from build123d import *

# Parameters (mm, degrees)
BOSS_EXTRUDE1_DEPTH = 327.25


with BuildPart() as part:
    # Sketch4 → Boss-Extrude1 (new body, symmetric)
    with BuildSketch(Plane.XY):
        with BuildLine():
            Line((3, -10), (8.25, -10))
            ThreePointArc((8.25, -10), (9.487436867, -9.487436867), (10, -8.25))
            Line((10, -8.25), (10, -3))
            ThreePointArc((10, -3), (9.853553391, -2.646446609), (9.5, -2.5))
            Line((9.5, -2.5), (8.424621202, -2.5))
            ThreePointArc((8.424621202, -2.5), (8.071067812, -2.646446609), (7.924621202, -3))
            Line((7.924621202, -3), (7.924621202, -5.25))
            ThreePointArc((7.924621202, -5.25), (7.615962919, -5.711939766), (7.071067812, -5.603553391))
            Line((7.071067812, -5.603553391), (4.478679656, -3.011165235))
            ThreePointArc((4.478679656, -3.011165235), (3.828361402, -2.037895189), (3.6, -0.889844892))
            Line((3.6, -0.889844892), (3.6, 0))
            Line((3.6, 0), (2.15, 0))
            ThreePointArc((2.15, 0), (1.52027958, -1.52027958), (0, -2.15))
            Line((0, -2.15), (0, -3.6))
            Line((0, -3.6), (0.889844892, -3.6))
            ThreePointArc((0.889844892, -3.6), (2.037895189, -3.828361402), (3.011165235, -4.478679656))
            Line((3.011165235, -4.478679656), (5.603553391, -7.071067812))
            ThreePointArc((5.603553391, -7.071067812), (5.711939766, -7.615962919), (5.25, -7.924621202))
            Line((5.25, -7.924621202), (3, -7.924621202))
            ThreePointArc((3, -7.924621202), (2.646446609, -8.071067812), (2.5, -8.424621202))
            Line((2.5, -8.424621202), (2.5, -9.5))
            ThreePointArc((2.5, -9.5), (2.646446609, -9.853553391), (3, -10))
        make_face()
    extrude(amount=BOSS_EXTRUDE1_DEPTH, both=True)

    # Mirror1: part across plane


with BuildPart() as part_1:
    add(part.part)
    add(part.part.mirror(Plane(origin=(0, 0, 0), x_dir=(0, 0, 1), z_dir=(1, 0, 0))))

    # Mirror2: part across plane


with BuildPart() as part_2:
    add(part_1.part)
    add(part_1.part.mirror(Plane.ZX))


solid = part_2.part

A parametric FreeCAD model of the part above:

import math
import FreeCAD as App
import Part
import Sketcher
from FreeCAD import Vector
Q = App.Units.Quantity

doc = App.newDocument("Part")
body = doc.addObject("PartDesign::Body", "Body")

# Sketch on XY plane
sketch1 = doc.addObject("Sketcher::SketchObject", "Sketch")
body.addObject(sketch1)
sketch1.AttachmentSupport = (doc.XY_Plane, [""])
sketch1.MapMode = "FlatFace"
sketch1.addGeometry([
    Part.LineSegment(Vector(3, -10, 0), Vector(8.25, -10, 0)),  # 0
    Part.ArcOfCircle(Part.Circle(Vector(8.25, -8.25, 0), Vector(0, 0, 1), 1.75), math.radians(-90), math.radians(0)),  # 1
    Part.LineSegment(Vector(10, -8.25, 0), Vector(10, -3, 0)),  # 2
    Part.ArcOfCircle(Part.Circle(Vector(9.5, -3, 0), Vector(0, 0, 1), 0.5), math.radians(0), math.radians(90)),  # 3
    Part.LineSegment(Vector(9.5, -2.5, 0), Vector(8.42, -2.5, 0)),  # 4
    Part.ArcOfCircle(Part.Circle(Vector(8.42, -3, 0), Vector(0, 0, 1), 0.5), math.radians(90), math.radians(180)),  # 5
    Part.LineSegment(Vector(7.92, -3, 0), Vector(7.92, -5.25, 0)),  # 6
    Part.ArcOfCircle(Part.Circle(Vector(7.42, -5.25, 0), Vector(0, 0, 1), 0.5), math.radians(-135), math.radians(0)),  # 7
    Part.LineSegment(Vector(7.07, -5.6, 0), Vector(4.48, -3.01, 0)),  # 8
    Part.ArcOfCircle(Part.Circle(Vector(6.6, -0.89, 0), Vector(0, 0, 1), 3), math.radians(180), math.radians(225)),  # 9
    Part.LineSegment(Vector(3.6, -0.89, 0), Vector(3.6, 0, 0)),  # 10
    Part.LineSegment(Vector(3.6, 0, 0), Vector(2.15, 0, 0)),  # 11
    Part.ArcOfCircle(Part.Circle(Vector(0, 0, 0), Vector(0, 0, 1), 2.15), math.radians(-90), math.radians(0)),  # 12
    Part.LineSegment(Vector(0, -2.15, 0), Vector(0, -3.6, 0)),  # 13
    Part.LineSegment(Vector(0, -3.6, 0), Vector(0.89, -3.6, 0)),  # 14
    Part.ArcOfCircle(Part.Circle(Vector(0.89, -6.6, 0), Vector(0, 0, 1), 3), math.radians(45), math.radians(90)),  # 15
    Part.LineSegment(Vector(3.01, -4.48, 0), Vector(5.6, -7.07, 0)),  # 16
    Part.ArcOfCircle(Part.Circle(Vector(5.25, -7.42, 0), Vector(0, 0, 1), 0.5), math.radians(-90), math.radians(45)),  # 17
    Part.LineSegment(Vector(5.25, -7.92, 0), Vector(3, -7.92, 0)),  # 18
    Part.ArcOfCircle(Part.Circle(Vector(3, -8.42, 0), Vector(0, 0, 1), 0.5), math.radians(90), math.radians(180)),  # 19
    Part.LineSegment(Vector(2.5, -8.42, 0), Vector(2.5, -9.5, 0)),  # 20
    Part.ArcOfCircle(Part.Circle(Vector(3, -9.5, 0), Vector(0, 0, 1), 0.5), math.radians(180), math.radians(270)),  # 21
], False)
sketch1.addConstraint([
    Sketcher.Constraint("Tangent", 0, 2, 1, 1),
    Sketcher.Constraint("Tangent", 1, 2, 2, 1),
    Sketcher.Constraint("Tangent", 2, 2, 3, 1),
    Sketcher.Constraint("Tangent", 3, 2, 4, 1),
    Sketcher.Constraint("Tangent", 4, 2, 5, 1),
    Sketcher.Constraint("Tangent", 5, 2, 6, 1),
    Sketcher.Constraint("Tangent", 6, 2, 7, 2),
    Sketcher.Constraint("Tangent", 7, 1, 8, 1),
    Sketcher.Constraint("Tangent", 8, 2, 9, 2),
    Sketcher.Constraint("Tangent", 9, 1, 10, 1),
    Sketcher.Constraint("Coincident", 10, 2, 11, 1),
    Sketcher.Constraint("Coincident", 11, 2, 12, 2),
    Sketcher.Constraint("Coincident", 12, 1, 13, 1),
    Sketcher.Constraint("Coincident", 13, 2, 14, 1),
    Sketcher.Constraint("Tangent", 14, 2, 15, 2),
    Sketcher.Constraint("Tangent", 15, 1, 16, 1),
    Sketcher.Constraint("Tangent", 16, 2, 17, 2),
    Sketcher.Constraint("Tangent", 17, 1, 18, 1),
    Sketcher.Constraint("Tangent", 18, 2, 19, 1),
    Sketcher.Constraint("Tangent", 19, 2, 20, 1),
    Sketcher.Constraint("Tangent", 20, 2, 21, 1),
    Sketcher.Constraint("Tangent", 21, 2, 0, 1),
    Sketcher.Constraint("Horizontal", 0),
    Sketcher.Constraint("Vertical", 2),
    Sketcher.Constraint("Horizontal", 4),
    Sketcher.Constraint("Vertical", 6),
    Sketcher.Constraint("Vertical", 10),
    Sketcher.Constraint("Horizontal", 11),
    Sketcher.Constraint("Vertical", 13),
    Sketcher.Constraint("Horizontal", 14),
    Sketcher.Constraint("Horizontal", 18),
    Sketcher.Constraint("Vertical", 20),
    Sketcher.Constraint("Coincident", 12, 3, -1, 1),
    Sketcher.Constraint("Equal", 3, 5),
    Sketcher.Constraint("Equal", 5, 7),
    Sketcher.Constraint("Equal", 9, 15),
    Sketcher.Constraint("Equal", 7, 17),
    Sketcher.Constraint("Equal", 17, 19),
    Sketcher.Constraint("Equal", 19, 21),
    Sketcher.Constraint("PointOnObject", 10, 2, -1),
    Sketcher.Constraint("PointOnObject", 12, 1, -2),
    Sketcher.Constraint("Parallel", 8, 16),
    Sketcher.Constraint("Equal", 0, 2),
    Sketcher.Constraint("Equal", 18, 6),
    Sketcher.Constraint("Equal", 14, 10),
    Sketcher.Constraint("Equal", 11, 13),
    Sketcher.Constraint("Equal", 4, 20),
    Sketcher.Constraint("Equal", 8, 16),
    Sketcher.Constraint("Radius", 9, Q("3 mm")),
    Sketcher.Constraint("Radius", 3, Q("0.5 mm")),
    Sketcher.Constraint("Radius", 1, Q("1.75 mm")),
    Sketcher.Constraint("Radius", 12, Q("2.15 mm")),
    Sketcher.Constraint("DistanceY", 3, 3, -1, 1, Q("3 mm")),
    Sketcher.Constraint("DistanceY", 0, 2, -1, 1, Q("10 mm")),
    Sketcher.Constraint("DistanceY", 1, 3, 7, 3, Q("3 mm")),
    Sketcher.Constraint("DistanceX", 11, 2, 11, 1, Q("1.45 mm")),
    Sketcher.Constraint("DistanceX", 4, 2, 4, 1, Q("1.075379 mm")),
])
pad1 = doc.addObject("PartDesign::Pad", "Pad")
body.addObject(pad1)
pad1.Profile = sketch1
pad1.Length = 654.5
pad1.Midplane = True
body2 = doc.addObject("PartDesign::Body", "Body001")
doc.recompute()

body2.BaseFeature = body
doc.recompute()

mirroring = doc.addObject("Part::Mirroring", "Mirroring")
mirroring.Source = body
mirroring.Base = Vector(0, 0, 0)
mirroring.Normal = Vector(1, 0, 0)
body3 = doc.addObject("PartDesign::Body", "Body002")
body3.BaseFeature = mirroring
boolean = doc.addObject("PartDesign::Boolean", "Boolean")
body2.addObject(boolean)
boolean.Type = "Fuse"
boolean.addObjects([body3])
doc.recompute()
body4 = doc.addObject("PartDesign::Body", "Body003")
doc.recompute()

body4.BaseFeature = body2
doc.recompute()

mirroring2 = doc.addObject("Part::Mirroring", "Mirroring001")
mirroring2.Source = body2
mirroring2.Base = Vector(0, 0, 0)
mirroring2.Normal = Vector(0, 1, 0)
body5 = doc.addObject("PartDesign::Body", "Body004")
body5.BaseFeature = mirroring2
boolean2 = doc.addObject("PartDesign::Boolean", "Boolean001")
body4.addObject(boolean2)
boolean2.Type = "Fuse"
boolean2.addObjects([body5])
doc.recompute()
mirroring.Visibility = False
mirroring2.Visibility = False

doc.recompute()
